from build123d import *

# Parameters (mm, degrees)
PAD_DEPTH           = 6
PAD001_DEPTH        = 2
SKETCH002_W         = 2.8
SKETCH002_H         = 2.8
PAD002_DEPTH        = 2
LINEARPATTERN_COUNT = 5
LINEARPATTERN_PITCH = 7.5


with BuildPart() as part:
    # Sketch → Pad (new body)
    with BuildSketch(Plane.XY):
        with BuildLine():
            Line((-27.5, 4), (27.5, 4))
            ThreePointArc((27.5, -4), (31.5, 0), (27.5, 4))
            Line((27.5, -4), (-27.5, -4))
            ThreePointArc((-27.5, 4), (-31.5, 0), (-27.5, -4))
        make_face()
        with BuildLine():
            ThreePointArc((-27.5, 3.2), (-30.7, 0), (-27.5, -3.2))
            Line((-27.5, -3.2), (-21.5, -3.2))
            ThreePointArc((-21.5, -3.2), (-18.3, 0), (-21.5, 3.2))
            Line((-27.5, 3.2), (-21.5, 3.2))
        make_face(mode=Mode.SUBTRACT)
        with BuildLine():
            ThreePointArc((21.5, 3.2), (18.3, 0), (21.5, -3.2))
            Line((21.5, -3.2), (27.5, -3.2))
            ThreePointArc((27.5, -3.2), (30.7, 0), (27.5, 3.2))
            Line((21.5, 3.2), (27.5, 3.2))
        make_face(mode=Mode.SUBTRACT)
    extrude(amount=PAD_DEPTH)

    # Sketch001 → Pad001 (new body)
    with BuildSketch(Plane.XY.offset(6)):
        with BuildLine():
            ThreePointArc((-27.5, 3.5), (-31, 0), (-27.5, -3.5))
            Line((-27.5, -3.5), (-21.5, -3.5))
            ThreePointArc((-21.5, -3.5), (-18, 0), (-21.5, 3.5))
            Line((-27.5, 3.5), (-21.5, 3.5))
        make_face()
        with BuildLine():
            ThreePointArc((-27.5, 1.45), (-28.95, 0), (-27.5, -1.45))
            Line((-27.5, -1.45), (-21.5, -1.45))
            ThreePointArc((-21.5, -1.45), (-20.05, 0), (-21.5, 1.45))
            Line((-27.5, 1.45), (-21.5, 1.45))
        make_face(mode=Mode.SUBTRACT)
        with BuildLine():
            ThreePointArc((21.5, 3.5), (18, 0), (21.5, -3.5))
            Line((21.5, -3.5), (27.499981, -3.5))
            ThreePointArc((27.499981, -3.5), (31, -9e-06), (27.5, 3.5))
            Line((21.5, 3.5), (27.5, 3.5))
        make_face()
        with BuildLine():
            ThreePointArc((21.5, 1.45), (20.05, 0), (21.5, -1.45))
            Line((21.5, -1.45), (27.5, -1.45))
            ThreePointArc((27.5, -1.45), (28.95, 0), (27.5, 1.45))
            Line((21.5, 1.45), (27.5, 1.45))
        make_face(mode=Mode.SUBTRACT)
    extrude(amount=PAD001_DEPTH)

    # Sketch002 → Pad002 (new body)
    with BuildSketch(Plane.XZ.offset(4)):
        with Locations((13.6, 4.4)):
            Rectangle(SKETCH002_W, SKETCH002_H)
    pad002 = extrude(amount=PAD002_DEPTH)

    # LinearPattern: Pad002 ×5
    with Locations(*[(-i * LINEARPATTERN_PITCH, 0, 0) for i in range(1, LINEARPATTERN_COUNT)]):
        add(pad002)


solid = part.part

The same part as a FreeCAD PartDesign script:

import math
import FreeCAD as App
import Part
import Sketcher
from FreeCAD import Vector


def add_polygon(sketch, points):
    """Adds a closed chain of lines whose ends are joined by coincident constraints."""
    first, n = sketch.GeometryCount, len(points)
    for a, b in zip(points, points[1:] + points[:1]):
        sketch.addGeometry(Part.LineSegment(App.Vector(*a, 0), App.Vector(*b, 0)), False)
    for i in range(n):
        sketch.addConstraint(Sketcher.Constraint("Coincident", first + i, 2, first + (i + 1) % n, 1))

doc = App.newDocument("Part")
params = doc.addObject("Spreadsheet::Sheet", "Params")
for row, (alias, value) in enumerate([
    ("sketch1_radius", "4 mm"),
    ("sketch1_radius2", "3.2 mm"),
    ("sketch1_width", "55 mm"),
    ("sketch1_width2", "6 mm"),
    ("pad1_length", "6 mm"),
    ("sketch2_radius", "3.5 mm"),
    ("sketch2_width", "6 mm"),
    ("sketch2_radius2", "1.45 mm"),
    ("pad2_length", "2 mm"),
    ("sketch3_width", "2.8 mm"),
    ("pad3_length", "2 mm"),
    ("linearpattern_pitch", "7.5 mm"),
], start=1):
    params.set(f"A{row}", alias)
    params.set(f"B{row}", "=" + value)
    params.setAlias(f"B{row}", alias)

body = doc.addObject("PartDesign::Body", "Body")

# Sketch on XY plane
sketch1 = body.newObject("Sketcher::SketchObject", "Sketch")
sketch1.AttachmentSupport = (doc.getObject("XY_Plane"), [""])
sketch1.MapMode = "FlatFace"
sketch1.addGeometry(Part.LineSegment(Vector(27.5, 4, 0), Vector(-27.5, 4, 0)), False)
sketch1.addGeometry(Part.ArcOfCircle(Part.Circle(Vector(-27.5, 0, 0), Vector(0, 0, 1), 4), math.radians(90), math.radians(270)), False)
sketch1.addGeometry(Part.LineSegment(Vector(-27.5, -4, 0), Vector(27.5, -4, 0)), False)
sketch1.addGeometry(Part.ArcOfCircle(Part.Circle(Vector(27.5, 0, 0), Vector(0, 0, 1), 4), math.radians(-90), math.radians(90)), False)
sketch1.addGeometry(Part.LineSegment(Vector(21.5, 3.2, 0), Vector(27.5, 3.2, 0)), False)
sketch1.addGeometry(Part.ArcOfCircle(Part.Circle(Vector(27.5, 0, 0), Vector(0, 0, 1), 3.2), math.radians(-90), math.radians(90)), False)
sketch1.addGeometry(Part.LineSegment(Vector(27.5, -3.2, 0), Vector(21.5, -3.2, 0)), False)
sketch1.addGeometry(Part.ArcOfCircle(Part.Circle(Vector(21.5, 0, 0), Vector(0, 0, 1), 3.2), math.radians(90), math.radians(270)), False)
sketch1.addGeometry(Part.LineSegment(Vector(-27.5, 3.2, 0), Vector(-21.5, 3.2, 0)), False)
sketch1.addGeometry(Part.ArcOfCircle(Part.Circle(Vector(-21.5, 0, 0), Vector(0, 0, 1), 3.2), math.radians(-90), math.radians(90)), False)
sketch1.addGeometry(Part.LineSegment(Vector(-21.5, -3.2, 0), Vector(-27.5, -3.2, 0)), False)
sketch1.addGeometry(Part.ArcOfCircle(Part.Circle(Vector(-27.5, 0, 0), Vector(0, 0, 1), 3.2), math.radians(90), math.radians(270)), False)
sketch1.addConstraint(Sketcher.Constraint("Tangent", 0, 2, 1, 1))
sketch1.addConstraint(Sketcher.Constraint("Tangent", 1, 2, 2, 1))
sketch1.addConstraint(Sketcher.Constraint("Tangent", 2, 2, 3, 1))
sketch1.addConstraint(Sketcher.Constraint("Tangent", 3, 2, 0, 1))
sketch1.addConstraint(Sketcher.Constraint("Tangent", 4, 2, 5, 2))
sketch1.addConstraint(Sketcher.Constraint("Tangent", 5, 1, 6, 1))
sketch1.addConstraint(Sketcher.Constraint("Tangent", 6, 2, 7, 2))
sketch1.addConstraint(Sketcher.Constraint("Tangent", 7, 1, 4, 1))
sketch1.addConstraint(Sketcher.Constraint("Tangent", 8, 2, 9, 2))
sketch1.addConstraint(Sketcher.Constraint("Tangent", 9, 1, 10, 1))
sketch1.addConstraint(Sketcher.Constraint("Tangent", 10, 2, 11, 2))
sketch1.addConstraint(Sketcher.Constraint("Tangent", 11, 1, 8, 1))
sketch1.addConstraint(Sketcher.Constraint("Horizontal", 0))
sketch1.addConstraint(Sketcher.Constraint("Horizontal", 2))
sketch1.addConstraint(Sketcher.Constraint("Horizontal", 4))
sketch1.addConstraint(Sketcher.Constraint("Horizontal", 6))
sketch1.addConstraint(Sketcher.Constraint("Horizontal", 8))
sketch1.addConstraint(Sketcher.Constraint("Horizontal", 10))
sketch1.addConstraint(Sketcher.Constraint("Coincident", 5, 3, 3, 3))
sketch1.addConstraint(Sketcher.Constraint("Coincident", 11, 3, 1, 3))
sketch1.addConstraint(Sketcher.Constraint("Equal", 7, 9))
sketch1.addConstraint(Sketcher.Constraint("Symmetric", 1, 3, 3, 3, -1, 1))
sketch1.addConstraint(Sketcher.Constraint("Equal", 6, 8))
sketch1.addConstraint(Sketcher.Constraint("Radius", 1, 4.0))
sketch1.addConstraint(Sketcher.Constraint("Radius", 5, 3.2))
sketch1.addConstraint(Sketcher.Constraint("DistanceX", 0, 2, 0, 1, 55.0))
sketch1.addConstraint(Sketcher.Constraint("DistanceX", 4, 1, 4, 2, 6.0))
sketch1.setExpression("Constraints[23]", "Params.sketch1_radius")
sketch1.setExpression("Constraints[24]", "Params.sketch1_radius2")
sketch1.setExpression("Constraints[25]", "Params.sketch1_width")
sketch1.setExpression("Constraints[26]", "Params.sketch1_width2")
pad1 = body.newObject("PartDesign::Pad", "Pad")
pad1.Profile = sketch1
pad1.setExpression("Length", "Params.pad1_length")

# Sketch on XY plane
sketch2 = body.newObject("Sketcher::SketchObject", "Sketch001")
sketch2.AttachmentSupport = (doc.getObject("XY_Plane"), [""])
sketch2.MapMode = "FlatFace"
sketch2.AttachmentOffset = App.Placement(Vector(0, 0, 6), App.Rotation())
sketch2.addGeometry(Part.ArcOfCircle(Part.Circle(Vector(-27.5, 0, 0), Vector(0, 0, 1), 3.5), math.radians(90), math.radians(270)), False)
sketch2.addGeometry(Part.LineSegment(Vector(-27.5, -3.5, 0), Vector(-21.5, -3.5, 0)), False)
sketch2.addGeometry(Part.ArcOfCircle(Part.Circle(Vector(-21.5, 0, 0), Vector(0, 0, 1), 3.5), math.radians(-90), math.radians(90)), False)
sketch2.addGeometry(Part.LineSegment(Vector(-21.5, 3.5, 0), Vector(-27.5, 3.5, 0)), False)
sketch2.addGeometry(Part.ArcOfCircle(Part.Circle(Vector(-27.5, 0, 0), Vector(0, 0, 1), 1.45), math.radians(90), math.radians(270)), False)
sketch2.addGeometry(Part.LineSegment(Vector(-27.5, 1.45, 0), Vector(-21.5, 1.45, 0)), False)
sketch2.addGeometry(Part.ArcOfCircle(Part.Circle(Vector(-21.5, 0, 0), Vector(0, 0, 1), 1.45), math.radians(-90), math.radians(90)), False)
sketch2.addGeometry(Part.LineSegment(Vector(-21.5, -1.45, 0), Vector(-27.5, -1.45, 0)), False)
sketch2.addGeometry(Part.ArcOfCircle(Part.Circle(Vector(21.5, 0, 0), Vector(0, 0, 1), 3.5), math.radians(90), math.radians(270)), False)
sketch2.addGeometry(Part.LineSegment(Vector(21.5, -3.5, 0), Vector(27.499981, -3.5, 0)), False)
sketch2.addGeometry(Part.ArcOfCircle(Part.Circle(Vector(27.5, 0, 0), Vector(0, 0, 1), 3.5), math.radians(-90.000311), math.radians(90)), False)
sketch2.addGeometry(Part.LineSegment(Vector(27.5, 3.5, 0), Vector(21.5, 3.5, 0)), False)
sketch2.addGeometry(Part.ArcOfCircle(Part.Circle(Vector(21.5, 0, 0), Vector(0, 0, 1), 1.45), math.radians(90), math.radians(270)), False)
sketch2.addGeometry(Part.LineSegment(Vector(21.5, 1.45, 0), Vector(27.5, 1.45, 0)), False)
sketch2.addGeometry(Part.ArcOfCircle(Part.Circle(Vector(27.5, 0, 0), Vector(0, 0, 1), 1.45), math.radians(-90), math.radians(90)), False)
sketch2.addGeometry(Part.LineSegment(Vector(27.5, -1.45, 0), Vector(21.5, -1.45, 0)), False)
sketch2.addConstraint(Sketcher.Constraint("Tangent", 0, 2, 1, 1))
sketch2.addConstraint(Sketcher.Constraint("Tangent", 1, 2, 2, 1))
sketch2.addConstraint(Sketcher.Constraint("Tangent", 2, 2, 3, 1))
sketch2.addConstraint(Sketcher.Constraint("Tangent", 3, 2, 0, 1))
sketch2.addConstraint(Sketcher.Constraint("Tangent", 4, 1, 5, 1))
sketch2.addConstraint(Sketcher.Constraint("Tangent", 5, 2, 6, 2))
sketch2.addConstraint(Sketcher.Constraint("Tangent", 6, 1, 7, 1))
sketch2.addConstraint(Sketcher.Constraint("Tangent", 7, 2, 4, 2))
sketch2.addConstraint(Sketcher.Constraint("Tangent", 8, 2, 9, 1))
sketch2.addConstraint(Sketcher.Constraint("Coincident", 9, 2, 10, 1))
sketch2.addConstraint(Sketcher.Constraint("Tangent", 10, 2, 11, 1))
sketch2.addConstraint(Sketcher.Constraint("Tangent", 11, 2, 8, 1))
sketch2.addConstraint(Sketcher.Constraint("Tangent", 12, 1, 13, 1))
sketch2.addConstraint(Sketcher.Constraint("Tangent", 13, 2, 14, 2))
sketch2.addConstraint(Sketcher.Constraint("Tangent", 14, 1, 15, 1))
sketch2.addConstraint(Sketcher.Constraint("Tangent", 15, 2, 12, 2))
sketch2.addConstraint(Sketcher.Constraint("Horizontal", 1))
sketch2.addConstraint(Sketcher.Constraint("Horizontal", 3))
sketch2.addConstraint(Sketcher.Constraint("Horizontal", 5))
sketch2.addConstraint(Sketcher.Constraint("Horizontal", 7))
sketch2.addConstraint(Sketcher.Constraint("Horizontal", 9))
sketch2.addConstraint(Sketcher.Constraint("Horizontal", 11))
sketch2.addConstraint(Sketcher.Constraint("Horizontal", 13))
sketch2.addConstraint(Sketcher.Constraint("Horizontal", 15))
sketch2.addConstraint(Sketcher.Constraint("Coincident", 4, 3, 0, 3))
sketch2.addConstraint(Sketcher.Constraint("Coincident", 12, 3, 8, 3))
sketch2.addConstraint(Sketcher.Constraint("Equal", 2, 8))
sketch2.addConstraint(Sketcher.Constraint("Equal", 6, 12))
sketch2.addConstraint(Sketcher.Constraint("Symmetric", 2, 3, 8, 3, -1, 1))
sketch2.addConstraint(Sketcher.Constraint("Symmetric", 0, 3, 10, 3, -2))
sketch2.addConstraint(Sketcher.Constraint("Vertical", 6, 3, 1, 2))
sketch2.addConstraint(Sketcher.Constraint("Vertical", 14, 3, 10, 2))
sketch2.addConstraint(Sketcher.Constraint("Radius", 0, 3.5))
sketch2.addConstraint(Sketcher.Constraint("DistanceX", 1, 1, 1, 2, 6.0))
sketch2.addConstraint(Sketcher.Constraint("Radius", 4, 1.45))
sketch2.addConstraint(Sketcher.Constraint("DistanceX", 2, 3, 8, 3, 43.0))
sketch2.addConstraint(Sketcher.Constraint("DistanceX", 9, 1, 9, 2, 5.999981))
sketch2.setExpression("Constraints[32]", "Params.sketch2_radius")
sketch2.setExpression("Constraints[33]", "Params.sketch2_width")
sketch2.setExpression("Constraints[34]", "Params.sketch2_radius2")
pad2 = body.newObject("PartDesign::Pad", "Pad001")
pad2.Profile = sketch2
pad2.setExpression("Length", "Params.pad2_length")

# Sketch on XZ plane
sketch3 = body.newObject("Sketcher::SketchObject", "Sketch002")
sketch3.AttachmentSupport = (doc.getObject("XZ_Plane"), [""])
sketch3.MapMode = "FlatFace"
sketch3.AttachmentOffset = App.Placement(Vector(0, 0, 4), App.Rotation())
add_polygon(sketch3, [(12.2, 5.8), (12.2, 3), (15, 3), (15, 5.8)])  # lines 0-3
sketch3.addConstraint(Sketcher.Constraint("Vertical", 0))
sketch3.addConstraint(Sketcher.Constraint("Horizontal", 1))
sketch3.addConstraint(Sketcher.Constraint("Vertical", 2))
sketch3.addConstraint(Sketcher.Constraint("Horizontal", 3))
sketch3.addConstraint(Sketcher.Constraint("Equal", 3, 0))
sketch3.addConstraint(Sketcher.Constraint("DistanceX", 1, 1, 1, 2, 2.8))
sketch3.addConstraint(Sketcher.Constraint("DistanceY", -1, 1, 0, 2, 3.0))
sketch3.addConstraint(Sketcher.Constraint("DistanceX", -1, 1, 1, 2, 15.0))
sketch3.setExpression("Constraints[9]", "Params.sketch3_width")
pad3 = body.newObject("PartDesign::Pad", "Pad002")
pad3.Profile = sketch3
pad3.setExpression("Length", "Params.pad3_length")
doc.recompute()

linearpattern = body.newObject("PartDesign::LinearPattern", "LinearPattern")
linearpattern.Originals = [pad3]
linearpattern.Direction = (doc.getObject("X_Axis"), [""])
linearpattern.Mode = "offset"
linearpattern.setExpression("Offset", "Params.linearpattern_pitch")
linearpattern.Occurrences = 5
linearpattern.Reversed = True
body.Tip = linearpattern

doc.recompute()
